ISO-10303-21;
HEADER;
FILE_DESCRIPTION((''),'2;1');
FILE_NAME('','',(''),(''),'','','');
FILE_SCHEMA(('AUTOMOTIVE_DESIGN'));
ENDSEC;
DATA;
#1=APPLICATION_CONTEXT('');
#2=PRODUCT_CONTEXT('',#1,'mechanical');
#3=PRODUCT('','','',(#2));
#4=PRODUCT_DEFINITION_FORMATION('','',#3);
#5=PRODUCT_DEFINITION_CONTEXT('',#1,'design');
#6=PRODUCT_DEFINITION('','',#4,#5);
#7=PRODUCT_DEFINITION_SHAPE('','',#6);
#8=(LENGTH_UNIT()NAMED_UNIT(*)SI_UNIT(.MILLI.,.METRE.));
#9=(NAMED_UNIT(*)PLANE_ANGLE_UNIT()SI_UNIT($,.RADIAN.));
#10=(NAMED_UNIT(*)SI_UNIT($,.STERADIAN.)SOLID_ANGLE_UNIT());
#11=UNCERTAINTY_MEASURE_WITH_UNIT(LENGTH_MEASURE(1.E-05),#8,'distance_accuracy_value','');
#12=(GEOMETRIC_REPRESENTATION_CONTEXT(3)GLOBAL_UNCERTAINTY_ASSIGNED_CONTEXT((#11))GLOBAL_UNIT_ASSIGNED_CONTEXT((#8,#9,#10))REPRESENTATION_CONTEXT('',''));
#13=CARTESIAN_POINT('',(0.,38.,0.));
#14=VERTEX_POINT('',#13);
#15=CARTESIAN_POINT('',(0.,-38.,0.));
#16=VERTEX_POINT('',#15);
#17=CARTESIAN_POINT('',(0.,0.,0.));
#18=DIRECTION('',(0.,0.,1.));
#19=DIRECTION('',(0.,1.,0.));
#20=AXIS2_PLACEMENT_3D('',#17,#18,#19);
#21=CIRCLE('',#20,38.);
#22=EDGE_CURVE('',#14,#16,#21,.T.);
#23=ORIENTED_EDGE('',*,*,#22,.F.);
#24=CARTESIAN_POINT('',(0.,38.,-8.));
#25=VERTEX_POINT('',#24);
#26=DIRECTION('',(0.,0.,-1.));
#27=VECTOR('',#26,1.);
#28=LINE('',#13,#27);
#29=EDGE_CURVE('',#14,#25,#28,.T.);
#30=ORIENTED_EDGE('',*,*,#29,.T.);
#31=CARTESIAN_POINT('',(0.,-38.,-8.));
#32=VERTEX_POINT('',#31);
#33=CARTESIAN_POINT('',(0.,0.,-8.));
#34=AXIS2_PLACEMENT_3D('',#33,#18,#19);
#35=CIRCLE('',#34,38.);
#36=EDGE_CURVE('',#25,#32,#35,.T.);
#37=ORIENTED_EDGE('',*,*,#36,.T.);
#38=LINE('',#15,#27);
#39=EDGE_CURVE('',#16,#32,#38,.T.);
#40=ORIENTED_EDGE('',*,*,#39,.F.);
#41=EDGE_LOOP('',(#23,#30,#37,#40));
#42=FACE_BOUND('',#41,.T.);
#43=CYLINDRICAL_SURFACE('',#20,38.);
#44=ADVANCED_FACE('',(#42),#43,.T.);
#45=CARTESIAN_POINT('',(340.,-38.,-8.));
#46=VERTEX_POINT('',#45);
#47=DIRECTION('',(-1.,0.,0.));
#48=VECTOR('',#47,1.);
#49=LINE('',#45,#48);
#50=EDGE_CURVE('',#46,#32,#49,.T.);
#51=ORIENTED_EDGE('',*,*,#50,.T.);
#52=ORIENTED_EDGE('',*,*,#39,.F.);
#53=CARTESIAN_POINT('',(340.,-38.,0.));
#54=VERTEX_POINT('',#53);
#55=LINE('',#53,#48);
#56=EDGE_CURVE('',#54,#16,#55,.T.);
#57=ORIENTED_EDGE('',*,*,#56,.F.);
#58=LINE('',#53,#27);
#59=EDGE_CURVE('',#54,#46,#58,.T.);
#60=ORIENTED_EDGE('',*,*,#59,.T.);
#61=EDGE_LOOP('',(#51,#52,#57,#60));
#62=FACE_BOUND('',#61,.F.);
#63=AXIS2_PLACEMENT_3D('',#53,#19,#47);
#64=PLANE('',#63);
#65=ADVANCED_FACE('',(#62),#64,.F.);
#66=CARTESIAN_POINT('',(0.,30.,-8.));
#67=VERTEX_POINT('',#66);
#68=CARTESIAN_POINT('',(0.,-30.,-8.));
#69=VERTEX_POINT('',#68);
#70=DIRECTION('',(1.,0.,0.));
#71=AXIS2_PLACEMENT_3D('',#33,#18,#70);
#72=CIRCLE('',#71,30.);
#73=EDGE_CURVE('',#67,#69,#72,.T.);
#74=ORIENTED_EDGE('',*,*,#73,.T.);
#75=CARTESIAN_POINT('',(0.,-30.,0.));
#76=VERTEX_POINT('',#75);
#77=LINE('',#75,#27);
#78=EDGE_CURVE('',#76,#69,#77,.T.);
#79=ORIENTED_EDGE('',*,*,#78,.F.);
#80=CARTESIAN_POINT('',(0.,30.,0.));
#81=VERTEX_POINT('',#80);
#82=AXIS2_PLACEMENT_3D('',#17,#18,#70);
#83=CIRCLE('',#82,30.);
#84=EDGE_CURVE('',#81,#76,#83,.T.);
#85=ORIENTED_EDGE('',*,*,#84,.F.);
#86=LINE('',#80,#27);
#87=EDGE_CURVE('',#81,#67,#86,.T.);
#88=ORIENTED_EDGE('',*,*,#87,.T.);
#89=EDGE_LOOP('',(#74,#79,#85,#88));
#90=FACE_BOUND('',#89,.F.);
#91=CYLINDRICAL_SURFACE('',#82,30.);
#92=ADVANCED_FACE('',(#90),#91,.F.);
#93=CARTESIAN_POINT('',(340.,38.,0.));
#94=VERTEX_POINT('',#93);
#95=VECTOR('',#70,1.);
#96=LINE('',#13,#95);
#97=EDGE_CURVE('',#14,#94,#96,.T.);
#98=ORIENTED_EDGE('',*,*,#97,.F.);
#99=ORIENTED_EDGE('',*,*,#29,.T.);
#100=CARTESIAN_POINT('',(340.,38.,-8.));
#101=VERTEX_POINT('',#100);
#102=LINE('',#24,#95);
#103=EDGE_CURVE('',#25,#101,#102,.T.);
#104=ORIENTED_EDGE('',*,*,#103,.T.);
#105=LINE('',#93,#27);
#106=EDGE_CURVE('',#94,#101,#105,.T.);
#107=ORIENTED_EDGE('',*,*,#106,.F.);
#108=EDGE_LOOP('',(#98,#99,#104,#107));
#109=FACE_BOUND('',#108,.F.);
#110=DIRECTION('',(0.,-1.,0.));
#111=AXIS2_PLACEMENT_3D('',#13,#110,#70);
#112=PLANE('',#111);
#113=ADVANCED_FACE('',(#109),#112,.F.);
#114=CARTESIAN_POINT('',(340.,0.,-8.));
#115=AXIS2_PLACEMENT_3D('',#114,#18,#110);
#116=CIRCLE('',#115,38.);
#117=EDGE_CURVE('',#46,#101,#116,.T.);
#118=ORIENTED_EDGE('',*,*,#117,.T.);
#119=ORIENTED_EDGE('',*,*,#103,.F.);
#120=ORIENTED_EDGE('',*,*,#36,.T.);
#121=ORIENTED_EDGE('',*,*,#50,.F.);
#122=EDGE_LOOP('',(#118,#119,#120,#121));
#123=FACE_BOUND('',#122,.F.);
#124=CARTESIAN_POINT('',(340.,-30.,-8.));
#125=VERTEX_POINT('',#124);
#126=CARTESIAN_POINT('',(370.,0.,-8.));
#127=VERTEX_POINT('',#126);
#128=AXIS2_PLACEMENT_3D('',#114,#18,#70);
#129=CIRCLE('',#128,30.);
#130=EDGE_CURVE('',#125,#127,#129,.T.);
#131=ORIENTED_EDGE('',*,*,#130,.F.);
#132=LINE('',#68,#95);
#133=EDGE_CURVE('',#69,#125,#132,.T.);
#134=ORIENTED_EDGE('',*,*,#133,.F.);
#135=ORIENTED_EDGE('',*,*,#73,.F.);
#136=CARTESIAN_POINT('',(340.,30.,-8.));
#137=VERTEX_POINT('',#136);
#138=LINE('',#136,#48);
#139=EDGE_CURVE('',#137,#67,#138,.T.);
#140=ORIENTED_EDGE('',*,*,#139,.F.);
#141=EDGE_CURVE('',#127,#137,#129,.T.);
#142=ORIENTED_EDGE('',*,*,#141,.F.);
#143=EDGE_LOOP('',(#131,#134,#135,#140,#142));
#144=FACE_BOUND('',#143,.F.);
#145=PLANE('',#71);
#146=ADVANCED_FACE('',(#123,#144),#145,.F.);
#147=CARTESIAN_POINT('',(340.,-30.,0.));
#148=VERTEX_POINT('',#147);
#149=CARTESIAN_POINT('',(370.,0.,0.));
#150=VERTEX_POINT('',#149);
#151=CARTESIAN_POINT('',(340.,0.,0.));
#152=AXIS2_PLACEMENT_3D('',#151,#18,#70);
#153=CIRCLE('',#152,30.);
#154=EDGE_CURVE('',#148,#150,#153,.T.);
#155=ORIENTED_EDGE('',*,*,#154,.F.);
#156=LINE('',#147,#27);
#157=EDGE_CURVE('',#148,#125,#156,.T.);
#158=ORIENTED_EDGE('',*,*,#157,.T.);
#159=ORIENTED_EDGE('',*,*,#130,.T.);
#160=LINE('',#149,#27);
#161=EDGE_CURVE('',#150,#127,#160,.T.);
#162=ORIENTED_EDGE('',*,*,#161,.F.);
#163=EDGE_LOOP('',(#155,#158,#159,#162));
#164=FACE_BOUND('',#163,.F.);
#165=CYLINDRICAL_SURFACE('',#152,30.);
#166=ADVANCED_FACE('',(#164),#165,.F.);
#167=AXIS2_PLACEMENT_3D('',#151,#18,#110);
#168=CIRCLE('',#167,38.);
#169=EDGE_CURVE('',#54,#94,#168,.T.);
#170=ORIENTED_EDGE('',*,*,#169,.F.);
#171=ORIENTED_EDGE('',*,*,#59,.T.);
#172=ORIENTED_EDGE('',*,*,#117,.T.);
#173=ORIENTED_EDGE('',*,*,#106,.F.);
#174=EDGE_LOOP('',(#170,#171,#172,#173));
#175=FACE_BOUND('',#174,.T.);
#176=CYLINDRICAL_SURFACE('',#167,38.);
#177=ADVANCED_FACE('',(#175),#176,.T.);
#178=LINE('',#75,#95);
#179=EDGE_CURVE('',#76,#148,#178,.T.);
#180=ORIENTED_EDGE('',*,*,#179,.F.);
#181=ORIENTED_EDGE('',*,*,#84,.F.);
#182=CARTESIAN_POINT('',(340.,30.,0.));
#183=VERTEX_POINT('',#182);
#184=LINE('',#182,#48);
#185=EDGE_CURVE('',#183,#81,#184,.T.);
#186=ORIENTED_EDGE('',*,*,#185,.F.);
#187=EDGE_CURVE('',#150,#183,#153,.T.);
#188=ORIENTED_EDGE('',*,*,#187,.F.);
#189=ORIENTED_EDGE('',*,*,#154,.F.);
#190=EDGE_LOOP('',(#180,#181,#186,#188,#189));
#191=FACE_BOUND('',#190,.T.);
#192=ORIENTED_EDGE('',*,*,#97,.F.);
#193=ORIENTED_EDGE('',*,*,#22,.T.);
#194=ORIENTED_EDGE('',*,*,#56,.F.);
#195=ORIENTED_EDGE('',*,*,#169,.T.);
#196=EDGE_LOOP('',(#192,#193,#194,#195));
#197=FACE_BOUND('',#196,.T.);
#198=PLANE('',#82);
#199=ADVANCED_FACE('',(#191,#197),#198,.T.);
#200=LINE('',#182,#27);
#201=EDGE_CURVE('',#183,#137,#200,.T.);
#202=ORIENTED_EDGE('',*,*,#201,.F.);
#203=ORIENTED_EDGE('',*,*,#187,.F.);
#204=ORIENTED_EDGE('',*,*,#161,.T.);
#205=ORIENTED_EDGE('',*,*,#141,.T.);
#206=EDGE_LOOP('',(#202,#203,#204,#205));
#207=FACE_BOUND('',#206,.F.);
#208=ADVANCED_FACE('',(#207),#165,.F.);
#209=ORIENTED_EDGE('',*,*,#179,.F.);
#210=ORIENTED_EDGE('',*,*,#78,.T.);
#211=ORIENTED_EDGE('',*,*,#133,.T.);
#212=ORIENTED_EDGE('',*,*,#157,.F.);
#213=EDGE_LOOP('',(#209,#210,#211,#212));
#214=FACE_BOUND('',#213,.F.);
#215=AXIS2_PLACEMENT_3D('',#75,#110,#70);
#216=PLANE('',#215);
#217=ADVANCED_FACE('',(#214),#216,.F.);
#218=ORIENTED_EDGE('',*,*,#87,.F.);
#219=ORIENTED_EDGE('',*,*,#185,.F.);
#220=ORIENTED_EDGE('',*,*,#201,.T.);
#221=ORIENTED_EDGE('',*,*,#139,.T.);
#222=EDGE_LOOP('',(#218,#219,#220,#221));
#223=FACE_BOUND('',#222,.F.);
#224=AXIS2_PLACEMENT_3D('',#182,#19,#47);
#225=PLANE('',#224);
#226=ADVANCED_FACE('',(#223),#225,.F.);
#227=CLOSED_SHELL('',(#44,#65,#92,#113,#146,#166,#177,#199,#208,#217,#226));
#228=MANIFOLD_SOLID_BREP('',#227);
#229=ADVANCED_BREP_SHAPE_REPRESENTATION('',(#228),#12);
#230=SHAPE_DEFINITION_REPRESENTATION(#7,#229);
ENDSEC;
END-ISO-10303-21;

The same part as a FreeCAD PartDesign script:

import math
import FreeCAD as App
import Part
import Sketcher
from FreeCAD import Vector

doc = App.newDocument("Part")
body = doc.addObject("PartDesign::Body", "Body")

# Sketch on XY plane
sketch1 = body.newObject("Sketcher::SketchObject", "Sketch")
sketch1.AttachmentSupport = (doc.getObject("XY_Plane"), [""])
sketch1.MapMode = "FlatFace"
sketch1.addGeometry([
    Part.LineSegment(Vector(340, 38, 0), Vector(0, 38, 0)),  # 0
    Part.ArcOfCircle(Part.Circle(Vector(0, 0, 0), Vector(0, 0, 1), 38), math.radians(90), math.radians(270)),  # 1
    Part.LineSegment(Vector(0, -38, 0), Vector(340, -38, 0)),  # 2
    Part.ArcOfCircle(Part.Circle(Vector(340, 0, 0), Vector(0, 0, 1), 38), math.radians(-90), math.radians(90)),  # 3
    Part.ArcOfCircle(Part.Circle(Vector(0, 0, 0), Vector(0, 0, 1), 30), math.radians(90), math.radians(270)),  # 4
    Part.LineSegment(Vector(0, 30, 0), Vector(340, 30, 0)),  # 5
    Part.ArcOfCircle(Part.Circle(Vector(340, 0, 0), Vector(0, 0, 1), 30), math.radians(-90), math.radians(90)),  # 6
    Part.LineSegment(Vector(340, -30, 0), Vector(0, -30, 0)),  # 7
], False)
sketch1.addConstraint([
    Sketcher.Constraint("Tangent", 0, 2, 1, 1),
    Sketcher.Constraint("Tangent", 1, 2, 2, 1),
    Sketcher.Constraint("Tangent", 2, 2, 3, 1),
    Sketcher.Constraint("Tangent", 3, 2, 0, 1),
    Sketcher.Constraint("Tangent", 4, 1, 5, 1),
    Sketcher.Constraint("Tangent", 5, 2, 6, 2),
    Sketcher.Constraint("Tangent", 6, 1, 7, 1),
    Sketcher.Constraint("Tangent", 7, 2, 4, 2),
    Sketcher.Constraint("Horizontal", 0),
    Sketcher.Constraint("Horizontal", 2),
    Sketcher.Constraint("Horizontal", 5),
    Sketcher.Constraint("Horizontal", 7),
    Sketcher.Constraint("Coincident", 1, 3, -1, 1),
    Sketcher.Constraint("Coincident", 4, 3, -1, 1),
    Sketcher.Constraint("Vertical", 6, 3, 2, 2),
    Sketcher.Constraint("Radius", 1, 38.0),
    Sketcher.Constraint("Radius", 4, 30.0),
    Sketcher.Constraint("DistanceX", 0, 2, 0, 1, 340.0),
])
pad1 = body.newObject("PartDesign::Pad", "Pad")
pad1.Profile = sketch1
pad1.Length = 8
pad1.Reversed = True

doc.recompute()
